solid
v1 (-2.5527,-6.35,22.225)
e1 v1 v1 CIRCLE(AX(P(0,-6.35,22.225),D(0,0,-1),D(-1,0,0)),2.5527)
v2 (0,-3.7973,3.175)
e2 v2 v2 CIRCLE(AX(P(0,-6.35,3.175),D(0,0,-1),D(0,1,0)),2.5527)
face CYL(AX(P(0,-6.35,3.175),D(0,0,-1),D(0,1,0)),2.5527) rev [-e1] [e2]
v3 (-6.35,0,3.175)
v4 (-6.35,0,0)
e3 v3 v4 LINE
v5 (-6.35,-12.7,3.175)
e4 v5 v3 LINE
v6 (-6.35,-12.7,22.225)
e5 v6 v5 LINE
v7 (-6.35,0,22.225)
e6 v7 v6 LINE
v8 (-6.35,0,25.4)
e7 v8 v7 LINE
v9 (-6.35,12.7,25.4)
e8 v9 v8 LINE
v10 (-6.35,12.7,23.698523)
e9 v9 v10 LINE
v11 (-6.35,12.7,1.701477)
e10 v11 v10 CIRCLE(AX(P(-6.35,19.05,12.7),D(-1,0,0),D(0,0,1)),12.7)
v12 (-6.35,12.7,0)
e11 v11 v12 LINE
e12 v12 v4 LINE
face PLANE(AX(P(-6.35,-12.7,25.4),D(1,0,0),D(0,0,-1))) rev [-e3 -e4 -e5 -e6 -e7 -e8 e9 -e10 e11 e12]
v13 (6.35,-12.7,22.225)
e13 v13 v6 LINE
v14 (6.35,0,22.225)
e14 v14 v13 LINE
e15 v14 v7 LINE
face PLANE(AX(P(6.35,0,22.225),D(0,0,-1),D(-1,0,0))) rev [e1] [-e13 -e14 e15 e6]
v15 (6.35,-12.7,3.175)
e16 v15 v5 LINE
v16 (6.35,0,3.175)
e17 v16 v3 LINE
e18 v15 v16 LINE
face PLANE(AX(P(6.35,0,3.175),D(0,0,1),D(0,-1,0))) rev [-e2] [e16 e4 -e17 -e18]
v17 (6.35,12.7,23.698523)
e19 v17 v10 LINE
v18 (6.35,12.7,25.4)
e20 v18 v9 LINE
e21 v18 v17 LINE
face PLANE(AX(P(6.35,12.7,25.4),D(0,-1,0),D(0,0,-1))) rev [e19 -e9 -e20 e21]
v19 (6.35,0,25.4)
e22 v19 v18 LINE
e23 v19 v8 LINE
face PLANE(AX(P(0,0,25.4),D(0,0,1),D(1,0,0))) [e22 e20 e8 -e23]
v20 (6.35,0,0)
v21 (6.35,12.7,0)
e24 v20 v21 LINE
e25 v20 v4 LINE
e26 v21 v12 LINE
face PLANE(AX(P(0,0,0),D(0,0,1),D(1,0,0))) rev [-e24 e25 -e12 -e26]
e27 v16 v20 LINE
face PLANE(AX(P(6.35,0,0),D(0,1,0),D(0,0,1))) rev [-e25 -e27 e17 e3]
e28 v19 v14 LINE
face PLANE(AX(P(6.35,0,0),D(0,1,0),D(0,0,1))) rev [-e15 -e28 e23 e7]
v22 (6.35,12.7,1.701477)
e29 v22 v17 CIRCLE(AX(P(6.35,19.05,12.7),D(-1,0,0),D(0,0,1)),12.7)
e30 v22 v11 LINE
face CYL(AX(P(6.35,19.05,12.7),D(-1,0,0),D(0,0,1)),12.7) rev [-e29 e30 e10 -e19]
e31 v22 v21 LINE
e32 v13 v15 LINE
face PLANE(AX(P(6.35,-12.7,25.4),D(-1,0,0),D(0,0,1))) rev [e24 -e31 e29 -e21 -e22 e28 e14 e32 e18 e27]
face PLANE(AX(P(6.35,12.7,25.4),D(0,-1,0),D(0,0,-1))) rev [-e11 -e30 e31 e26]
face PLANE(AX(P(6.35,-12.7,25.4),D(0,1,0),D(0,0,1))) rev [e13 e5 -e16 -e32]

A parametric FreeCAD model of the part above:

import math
import FreeCAD as App
import Part
import Sketcher
Q = App.Units.Quantity

doc = App.newDocument("Part")
body = doc.addObject("PartDesign::Body", "Body")

# Sketch on XY plane
sketch1 = body.newObject("Sketcher::SketchObject", "Sketch")
sketch1.AttachmentSupport = (doc.getObject("XY_Plane"), [""])
sketch1.MapMode = "FlatFace"
sketch1.addGeometry(Part.LineSegment(App.Vector(-6.35, 12.7, 0), App.Vector(-6.35, -12.7, 0)), False)
sketch1.addGeometry(Part.LineSegment(App.Vector(-6.35, -12.7, 0), App.Vector(6.35, -12.7, 0)), False)
sketch1.addGeometry(Part.LineSegment(App.Vector(6.35, -12.7, 0), App.Vector(6.35, 12.7, 0)), False)
sketch1.addGeometry(Part.LineSegment(App.Vector(6.35, 12.7, 0), App.Vector(-6.35, 12.7, 0)), False)
sketch1.addConstraint(Sketcher.Constraint("Coincident", 0, 2, 1, 1))
sketch1.addConstraint(Sketcher.Constraint("Coincident", 1, 2, 2, 1))
sketch1.addConstraint(Sketcher.Constraint("Coincident", 2, 2, 3, 1))
sketch1.addConstraint(Sketcher.Constraint("Coincident", 3, 2, 0, 1))
sketch1.addConstraint(Sketcher.Constraint("Vertical", 0))
sketch1.addConstraint(Sketcher.Constraint("Horizontal", 1))
sketch1.addConstraint(Sketcher.Constraint("Vertical", 2))
sketch1.addConstraint(Sketcher.Constraint("Horizontal", 3))
sketch1.addConstraint(Sketcher.Constraint("Symmetric", 0, 2, 2, 2, -1, 1))
sketch1.addConstraint(Sketcher.Constraint("DistanceY", 0, 2, 0, 1, Q("1 in")))
sketch1.addConstraint(Sketcher.Constraint("DistanceX", 1, 1, 1, 2, Q("0.5 in")))
pad1 = body.newObject("PartDesign::Pad", "Pad")
pad1.Profile = sketch1
pad1.Length = Q("1 in")

# Sketch on YZ plane
sketch2 = body.newObject("Sketcher::SketchObject", "Sketch001")
sketch2.AttachmentSupport = (doc.getObject("YZ_Plane"), [""])
sketch2.MapMode = "FlatFace"
sketch2.AttachmentOffset = App.Placement(App.Vector(0, 0, -0.25 * 25.4), App.Rotation())
sketch2.addGeometry(Part.LineSegment(App.Vector(17.51, -4.81, 0), App.Vector(-17.51, -4.81, 0)), False)
sketch2.addGeometry(Part.LineSegment(App.Vector(-17.51, -4.81, 0), App.Vector(-17.51, 30.21, 0)), False)
sketch2.addGeometry(Part.LineSegment(App.Vector(-17.51, 30.21, 0), App.Vector(17.51, 30.21, 0)), False)
sketch2.addGeometry(Part.LineSegment(App.Vector(17.51, 30.21, 0), App.Vector(17.51, -4.81, 0)), False)
sketch2.addGeometry(Part.ArcOfCircle(Part.Circle(App.Vector(19.05, 12.7, 0), App.Vector(0, 0, 1), 12.7), math.radians(120), math.radians(240)), False)
sketch2.addGeometry(Part.LineSegment(App.Vector(12.7, 23.698523, 0), App.Vector(12.7, 25.4, 0)), False)
sketch2.addGeometry(Part.LineSegment(App.Vector(12.7, 25.4, 0), App.Vector(0, 25.4, 0)), False)
sketch2.addGeometry(Part.LineSegment(App.Vector(0, 25.4, 0), App.Vector(0, 22.225, 0)), False)
sketch2.addGeometry(Part.LineSegment(App.Vector(0, 22.225, 0), App.Vector(-12.7, 22.225, 0)), False)
sketch2.addGeometry(Part.LineSegment(App.Vector(-12.7, 22.225, 0), App.Vector(-12.7, 3.175, 0)), False)
sketch2.addGeometry(Part.LineSegment(App.Vector(-12.7, 3.175, 0), App.Vector(0, 3.175, 0)), False)
sketch2.addGeometry(Part.LineSegment(App.Vector(0, 3.175, 0), App.Vector(0, 0, 0)), False)
sketch2.addGeometry(Part.LineSegment(App.Vector(0, 0, 0), App.Vector(12.7, 0, 0)), False)
sketch2.addGeometry(Part.LineSegment(App.Vector(12.7, 0, 0), App.Vector(12.7, 1.701477, 0)), False)
sketch2.addConstraint(Sketcher.Constraint("Coincident", 0, 2, 1, 1))
sketch2.addConstraint(Sketcher.Constraint("Coincident", 1, 2, 2, 1))
sketch2.addConstraint(Sketcher.Constraint("Coincident", 2, 2, 3, 1))
sketch2.addConstraint(Sketcher.Constraint("Coincident", 3, 2, 0, 1))
sketch2.addConstraint(Sketcher.Constraint("Coincident", 4, 1, 5, 1))
sketch2.addConstraint(Sketcher.Constraint("Coincident", 5, 2, 6, 1))
sketch2.addConstraint(Sketcher.Constraint("Coincident", 6, 2, 7, 1))
sketch2.addConstraint(Sketcher.Constraint("Coincident", 7, 2, 8, 1))
sketch2.addConstraint(Sketcher.Constraint("Coincident", 8, 2, 9, 1))
sketch2.addConstraint(Sketcher.Constraint("Coincident", 9, 2, 10, 1))
sketch2.addConstraint(Sketcher.Constraint("Coincident", 10, 2, 11, 1))
sketch2.addConstraint(Sketcher.Constraint("Coincident", 11, 2, 12, 1))
sketch2.addConstraint(Sketcher.Constraint("Coincident", 12, 2, 13, 1))
sketch2.addConstraint(Sketcher.Constraint("Coincident", 13, 2, 4, 2))
sketch2.addConstraint(Sketcher.Constraint("Horizontal", 0))
sketch2.addConstraint(Sketcher.Constraint("Vertical", 1))
sketch2.addConstraint(Sketcher.Constraint("Horizontal", 2))
sketch2.addConstraint(Sketcher.Constraint("Vertical", 3))
sketch2.addConstraint(Sketcher.Constraint("Vertical", 5))
sketch2.addConstraint(Sketcher.Constraint("Horizontal", 6))
sketch2.addConstraint(Sketcher.Constraint("Vertical", 7))
sketch2.addConstraint(Sketcher.Constraint("Horizontal", 8))
sketch2.addConstraint(Sketcher.Constraint("Vertical", 9))
sketch2.addConstraint(Sketcher.Constraint("Horizontal", 10))
sketch2.addConstraint(Sketcher.Constraint("Vertical", 11))
sketch2.addConstraint(Sketcher.Constraint("Horizontal", 12))
sketch2.addConstraint(Sketcher.Constraint("Vertical", 13))
sketch2.addConstraint(Sketcher.Constraint("Coincident", 11, 2, -1, 1))
sketch2.addConstraint(Sketcher.Constraint("PointOnObject", 6, 2, -2))
sketch2.addConstraint(Sketcher.Constraint("Vertical", 5, 2, 12, 2))
sketch2.addConstraint(Sketcher.Constraint("Equal", 6, 8))
sketch2.addConstraint(Sketcher.Constraint("Equal", 2, 1))
sketch2.addConstraint(Sketcher.Constraint("Equal", 7, 11))
sketch2.addConstraint(Sketcher.Constraint("Equal", 5, 13))
sketch2.addConstraint(Sketcher.Constraint("Radius", 4, Q("0.5 in")))
sketch2.addConstraint(Sketcher.Constraint("DistanceX", 6, 2, 6, 1, Q("0.5 in")))
sketch2.addConstraint(Sketcher.Constraint("DistanceY", -1, 1, 5, 2, Q("1 in")))
sketch2.addConstraint(Sketcher.Constraint("DistanceY", 9, 2, 9, 1, Q("0.75 in")))
sketch2.addConstraint(Sketcher.Constraint("DistanceX", -1, 1, 4, 3, Q("0.75 in")))
sketch2.addConstraint(Sketcher.Constraint("DistanceX", 0, 2, 0, 1, 35.02))
sketch2.addConstraint(Sketcher.Constraint("DistanceX", 0, 2, -1, 1, 17.51))
sketch2.addConstraint(Sketcher.Constraint("DistanceY", 0, 2, -1, 1, 4.81))
pocket1 = body.newObject("PartDesign::Pocket", "Pocket")
pocket1.Profile = sketch2
pocket1.Type = "ThroughAll"
pocket1.Reversed = True

# Sketch on XY plane
sketch3 = body.newObject("Sketcher::SketchObject", "Sketch002")
sketch3.AttachmentSupport = (doc.getObject("XY_Plane"), [""])
sketch3.MapMode = "FlatFace"
sketch3.AttachmentOffset = App.Placement(App.Vector(0, 0, 0.125 * 25.4), App.Rotation())
sketch3.addGeometry(Part.Circle(App.Vector(0, -6.35, 0), App.Vector(0, 0, 1), 2.5527), False)
sketch3.addConstraint(Sketcher.Constraint("PointOnObject", 0, 3, -2))
sketch3.addConstraint(Sketcher.Constraint("Diameter", 0, Q("0.201 in")))
sketch3.addConstraint(Sketcher.Constraint("DistanceY", 0, 3, -1, 1, Q("0.25 in")))
doc.recompute()
hole = body.newObject("PartDesign::Hole", "Hole")
hole.Profile = sketch3
hole.ThreadType = "None"
hole.Diameter = Q("0.201 in")
hole.DepthType = "ThroughAll"
hole.Reversed = True

doc.recompute()
